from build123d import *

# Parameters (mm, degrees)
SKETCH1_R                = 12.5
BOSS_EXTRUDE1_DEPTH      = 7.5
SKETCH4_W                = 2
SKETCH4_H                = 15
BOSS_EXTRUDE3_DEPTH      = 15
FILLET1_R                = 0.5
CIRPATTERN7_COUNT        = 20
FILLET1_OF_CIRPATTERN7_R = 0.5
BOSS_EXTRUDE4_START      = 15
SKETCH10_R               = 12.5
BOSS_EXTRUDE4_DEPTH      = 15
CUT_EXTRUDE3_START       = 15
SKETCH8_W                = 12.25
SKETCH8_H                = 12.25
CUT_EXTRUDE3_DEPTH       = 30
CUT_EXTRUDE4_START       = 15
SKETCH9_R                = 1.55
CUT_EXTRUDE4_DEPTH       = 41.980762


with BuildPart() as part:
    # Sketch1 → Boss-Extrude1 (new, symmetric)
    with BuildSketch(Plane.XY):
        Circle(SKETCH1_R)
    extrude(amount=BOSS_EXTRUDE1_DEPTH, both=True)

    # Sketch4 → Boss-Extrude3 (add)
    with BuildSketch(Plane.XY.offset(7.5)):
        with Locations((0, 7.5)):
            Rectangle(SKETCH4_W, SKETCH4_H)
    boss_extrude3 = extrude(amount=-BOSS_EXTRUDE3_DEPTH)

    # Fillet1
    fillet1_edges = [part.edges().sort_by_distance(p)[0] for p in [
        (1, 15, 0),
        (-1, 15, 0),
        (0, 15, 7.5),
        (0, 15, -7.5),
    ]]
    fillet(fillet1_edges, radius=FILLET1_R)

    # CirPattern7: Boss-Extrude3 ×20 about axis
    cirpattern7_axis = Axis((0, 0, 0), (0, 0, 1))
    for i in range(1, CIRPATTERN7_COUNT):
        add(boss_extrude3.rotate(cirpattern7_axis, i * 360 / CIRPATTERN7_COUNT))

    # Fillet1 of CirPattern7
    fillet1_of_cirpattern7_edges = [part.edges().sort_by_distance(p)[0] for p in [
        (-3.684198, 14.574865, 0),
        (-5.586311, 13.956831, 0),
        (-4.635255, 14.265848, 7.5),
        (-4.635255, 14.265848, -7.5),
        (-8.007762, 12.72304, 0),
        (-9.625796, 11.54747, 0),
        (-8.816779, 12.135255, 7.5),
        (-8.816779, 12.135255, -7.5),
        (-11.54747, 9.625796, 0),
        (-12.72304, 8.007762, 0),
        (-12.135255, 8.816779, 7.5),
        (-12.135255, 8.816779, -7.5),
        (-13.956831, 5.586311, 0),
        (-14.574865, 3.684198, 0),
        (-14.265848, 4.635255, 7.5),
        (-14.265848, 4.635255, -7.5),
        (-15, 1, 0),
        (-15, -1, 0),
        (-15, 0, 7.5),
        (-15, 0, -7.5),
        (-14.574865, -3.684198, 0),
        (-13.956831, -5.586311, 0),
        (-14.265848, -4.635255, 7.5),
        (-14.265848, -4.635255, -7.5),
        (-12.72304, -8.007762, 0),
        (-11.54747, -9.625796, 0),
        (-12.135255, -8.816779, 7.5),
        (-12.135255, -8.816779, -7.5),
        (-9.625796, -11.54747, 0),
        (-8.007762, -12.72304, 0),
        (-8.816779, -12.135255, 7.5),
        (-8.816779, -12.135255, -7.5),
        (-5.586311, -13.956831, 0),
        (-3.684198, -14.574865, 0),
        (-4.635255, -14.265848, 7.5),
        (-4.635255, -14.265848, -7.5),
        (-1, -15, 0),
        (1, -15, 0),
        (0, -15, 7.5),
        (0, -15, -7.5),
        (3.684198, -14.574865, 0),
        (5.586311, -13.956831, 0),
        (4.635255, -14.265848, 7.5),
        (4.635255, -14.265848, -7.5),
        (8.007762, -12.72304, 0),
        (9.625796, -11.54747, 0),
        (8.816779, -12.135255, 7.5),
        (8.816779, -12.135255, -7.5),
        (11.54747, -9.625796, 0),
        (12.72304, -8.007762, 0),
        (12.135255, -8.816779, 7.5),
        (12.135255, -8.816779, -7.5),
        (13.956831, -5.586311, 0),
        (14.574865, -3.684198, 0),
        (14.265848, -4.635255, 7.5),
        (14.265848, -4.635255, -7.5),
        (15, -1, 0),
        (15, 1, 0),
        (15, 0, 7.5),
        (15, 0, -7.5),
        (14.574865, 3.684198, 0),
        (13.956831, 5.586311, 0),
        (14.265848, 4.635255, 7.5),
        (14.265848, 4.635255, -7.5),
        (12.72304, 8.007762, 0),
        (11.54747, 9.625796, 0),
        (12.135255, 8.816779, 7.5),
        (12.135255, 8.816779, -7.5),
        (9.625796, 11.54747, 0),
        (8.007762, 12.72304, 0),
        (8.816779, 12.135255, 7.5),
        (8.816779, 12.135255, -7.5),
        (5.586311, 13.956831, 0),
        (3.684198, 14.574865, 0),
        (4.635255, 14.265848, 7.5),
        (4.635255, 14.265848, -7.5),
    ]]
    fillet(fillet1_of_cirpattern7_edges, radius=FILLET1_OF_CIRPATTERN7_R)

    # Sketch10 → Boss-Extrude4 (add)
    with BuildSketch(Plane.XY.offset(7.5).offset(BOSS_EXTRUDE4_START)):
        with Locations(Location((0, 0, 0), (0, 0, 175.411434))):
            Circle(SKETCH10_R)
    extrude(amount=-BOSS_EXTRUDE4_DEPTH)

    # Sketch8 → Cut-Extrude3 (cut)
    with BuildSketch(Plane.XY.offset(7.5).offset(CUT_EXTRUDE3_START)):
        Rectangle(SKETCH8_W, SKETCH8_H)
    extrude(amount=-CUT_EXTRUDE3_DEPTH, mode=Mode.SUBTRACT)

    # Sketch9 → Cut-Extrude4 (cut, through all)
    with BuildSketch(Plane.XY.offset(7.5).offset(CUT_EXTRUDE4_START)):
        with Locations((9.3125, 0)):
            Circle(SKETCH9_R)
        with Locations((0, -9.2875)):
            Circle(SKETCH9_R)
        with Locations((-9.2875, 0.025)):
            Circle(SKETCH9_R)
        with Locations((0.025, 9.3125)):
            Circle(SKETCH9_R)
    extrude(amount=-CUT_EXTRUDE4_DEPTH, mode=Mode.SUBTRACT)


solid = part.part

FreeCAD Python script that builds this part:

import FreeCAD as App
import Part
import Sketcher


def edges_at(feature, points):
    """Names of the edges that pass closest to the given points."""
    edges = feature.Shape.Edges
    near = lambda p: min(range(len(edges)), key=lambda i: edges[i].distToShape(Part.Vertex(*p))[0])
    return sorted({f"Edge{near(p) + 1}" for p in points})

doc = App.newDocument("Part")
body = doc.addObject("PartDesign::Body", "Body")

sketch1 = body.newObject("Sketcher::SketchObject", "Sketch")
sketch1.AttachmentSupport = (doc.getObject("XY_Plane"), [""])
sketch1.MapMode = "FlatFace"
sketch1.addGeometry(Part.Circle(App.Vector(0, 0, 0), App.Vector(0, 0, 1), 12.5), False)
sketch1.addConstraint(Sketcher.Constraint("Coincident", 0, 3, -1, 1))
sketch1.addConstraint(Sketcher.Constraint("Diameter", 0, 25.0))
pad1 = body.newObject("PartDesign::Pad", "Pad")
pad1.Profile = sketch1
pad1.Length = 15
pad1.Midplane = True

sketch2 = body.newObject("Sketcher::SketchObject", "Sketch001")
sketch2.AttachmentSupport = (doc.getObject("XY_Plane"), [""])
sketch2.MapMode = "FlatFace"
sketch2.AttachmentOffset = App.Placement(App.Vector(0, 0, 7.5), App.Rotation())
sketch2.addGeometry(Part.LineSegment(App.Vector(-1, 15, 0), App.Vector(-1, 0, 0)), False)
sketch2.addGeometry(Part.LineSegment(App.Vector(-1, 0, 0), App.Vector(1, 0, 0)), False)
sketch2.addGeometry(Part.LineSegment(App.Vector(1, 0, 0), App.Vector(1, 15, 0)), False)
sketch2.addGeometry(Part.LineSegment(App.Vector(1, 15, 0), App.Vector(-1, 15, 0)), False)
sketch2.addConstraint(Sketcher.Constraint("Coincident", 0, 2, 1, 1))
sketch2.addConstraint(Sketcher.Constraint("Coincident", 1, 2, 2, 1))
sketch2.addConstraint(Sketcher.Constraint("Coincident", 2, 2, 3, 1))
sketch2.addConstraint(Sketcher.Constraint("Coincident", 3, 2, 0, 1))
sketch2.addConstraint(Sketcher.Constraint("Vertical", 0))
sketch2.addConstraint(Sketcher.Constraint("Horizontal", 1))
sketch2.addConstraint(Sketcher.Constraint("Vertical", 2))
sketch2.addConstraint(Sketcher.Constraint("Horizontal", 3))
sketch2.addConstraint(Sketcher.Constraint("Symmetric", 0, 2, 1, 2, -1, 1))
sketch2.addConstraint(Sketcher.Constraint("DistanceX", 1, 1, 1, 2, 2.0))
sketch2.addConstraint(Sketcher.Constraint("DistanceY", 0, 2, 0, 1, 15.0))
pad2 = body.newObject("PartDesign::Pad", "Pad001")
pad2.Profile = sketch2
pad2.Length = 15
pad2.Reversed = True
doc.recompute()

fillet = body.newObject("PartDesign::Fillet", "Fillet")
fillet.Base = (pad2, edges_at(pad2, [
    (1, 15, 0),
    (-1, 15, 0),
    (0, 15, 7.5),
    (0, 15, -7.5),
]))
fillet.Radius = 0.5
doc.recompute()

polarpattern = body.newObject("PartDesign::PolarPattern", "PolarPattern")
polarpattern.Originals = [pad2]
polarpattern.Axis = (doc.getObject("Z_Axis"), [""])
polarpattern.Angle = 360
polarpattern.Occurrences = 20
body.Tip = polarpattern
doc.recompute()

fillet2 = body.newObject("PartDesign::Fillet", "Fillet001")
fillet2.Base = (polarpattern, edges_at(polarpattern, [
    (-3.684, 14.575, 0),
    (-5.586, 13.957, 0),
    (-4.635, 14.266, 7.5),
    (-4.635, 14.266, -7.5),
    (-8.008, 12.723, 0),
    (-9.626, 11.547, 0),
    (-8.817, 12.135, 7.5),
    (-8.817, 12.135, -7.5),
    (-11.547, 9.626, 0),
    (-12.723, 8.008, 0),
    (-12.135, 8.817, 7.5),
    (-12.135, 8.817, -7.5),
    (-13.957, 5.586, 0),
    (-14.575, 3.684, 0),
    (-14.266, 4.635, 7.5),
    (-14.266, 4.635, -7.5),
    (-15, 1, 0),
    (-15, -1, 0),
    (-15, 0, 7.5),
    (-15, 0, -7.5),
    (-14.575, -3.684, 0),
    (-13.957, -5.586, 0),
    (-14.266, -4.635, 7.5),
    (-14.266, -4.635, -7.5),
    (-12.723, -8.008, 0),
    (-11.547, -9.626, 0),
    (-12.135, -8.817, 7.5),
    (-12.135, -8.817, -7.5),
    (-9.626, -11.547, 0),
    (-8.008, -12.723, 0),
    (-8.817, -12.135, 7.5),
    (-8.817, -12.135, -7.5),
    (-5.586, -13.957, 0),
    (-3.684, -14.575, 0),
    (-4.635, -14.266, 7.5),
    (-4.635, -14.266, -7.5),
    (-1, -15, 0),
    (1, -15, 0),
    (0, -15, 7.5),
    (0, -15, -7.5),
    (3.684, -14.575, 0),
    (5.586, -13.957, 0),
    (4.635, -14.266, 7.5),
    (4.635, -14.266, -7.5),
    (8.008, -12.723, 0),
    (9.626, -11.547, 0),
    (8.817, -12.135, 7.5),
    (8.817, -12.135, -7.5),
    (11.547, -9.626, 0),
    (12.723, -8.008, 0),
    (12.135, -8.817, 7.5),
    (12.135, -8.817, -7.5),
    (13.957, -5.586, 0),
    (14.575, -3.684, 0),
    (14.266, -4.635, 7.5),
    (14.266, -4.635, -7.5),
    (15, -1, 0),
    (15, 1, 0),
    (15, 0, 7.5),
    (15, 0, -7.5),
    (14.575, 3.684, 0),
    (13.957, 5.586, 0),
    (14.266, 4.635, 7.5),
    (14.266, 4.635, -7.5),
    (12.723, 8.008, 0),
    (11.547, 9.626, 0),
    (12.135, 8.817, 7.5),
    (12.135, 8.817, -7.5),
    (9.626, 11.547, 0),
    (8.008, 12.723, 0),
    (8.817, 12.135, 7.5),
    (8.817, 12.135, -7.5),
    (5.586, 13.957, 0),
    (3.684, 14.575, 0),
    (4.635, 14.266, 7.5),
    (4.635, 14.266, -7.5),
]))
fillet2.Radius = 0.5

sketch3 = body.newObject("Sketcher::SketchObject", "Sketch002")
sketch3.AttachmentSupport = (doc.getObject("XY_Plane"), [""])
sketch3.MapMode = "FlatFace"
sketch3.AttachmentOffset = App.Placement(App.Vector(0, 0, 22.5), App.Rotation())
sketch3.addGeometry(Part.Circle(App.Vector(0, 0, 0), App.Vector(0, 0, 1), 12.5), False)
sketch3.addConstraint(Sketcher.Constraint("Coincident", 0, 3, -1, 1))
sketch3.addConstraint(Sketcher.Constraint("Diameter", 0, 25.0))
pad3 = body.newObject("PartDesign::Pad", "Pad002")
pad3.Profile = sketch3
pad3.Length = 15
pad3.Reversed = True

sketch4 = body.newObject("Sketcher::SketchObject", "Sketch003")
sketch4.AttachmentSupport = (doc.getObject("XY_Plane"), [""])
sketch4.MapMode = "FlatFace"
sketch4.AttachmentOffset = App.Placement(App.Vector(0, 0, 22.5), App.Rotation())
sketch4.addGeometry(Part.LineSegment(App.Vector(-6.125, 6.125, 0), App.Vector(-6.125, -6.125, 0)), False)
sketch4.addGeometry(Part.LineSegment(App.Vector(-6.125, -6.125, 0), App.Vector(6.125, -6.125, 0)), False)
sketch4.addGeometry(Part.LineSegment(App.Vector(6.125, -6.125, 0), App.Vector(6.125, 6.125, 0)), False)
sketch4.addGeometry(Part.LineSegment(App.Vector(6.125, 6.125, 0), App.Vector(-6.125, 6.125, 0)), False)
sketch4.addConstraint(Sketcher.Constraint("Coincident", 0, 2, 1, 1))
sketch4.addConstraint(Sketcher.Constraint("Coincident", 1, 2, 2, 1))
sketch4.addConstraint(Sketcher.Constraint("Coincident", 2, 2, 3, 1))
sketch4.addConstraint(Sketcher.Constraint("Coincident", 3, 2, 0, 1))
sketch4.addConstraint(Sketcher.Constraint("Vertical", 0))
sketch4.addConstraint(Sketcher.Constraint("Horizontal", 1))
sketch4.addConstraint(Sketcher.Constraint("Vertical", 2))
sketch4.addConstraint(Sketcher.Constraint("Horizontal", 3))
sketch4.addConstraint(Sketcher.Constraint("Symmetric", 0, 2, 2, 2, -1, 1))
sketch4.addConstraint(Sketcher.Constraint("Equal", 3, 0))
sketch4.addConstraint(Sketcher.Constraint("DistanceX", 1, 1, 1, 2, 12.25))
pocket1 = body.newObject("PartDesign::Pocket", "Pocket")
pocket1.Profile = sketch4
pocket1.Length = 30

sketch5 = body.newObject("Sketcher::SketchObject", "Sketch004")
sketch5.AttachmentSupport = (doc.getObject("XY_Plane"), [""])
sketch5.MapMode = "FlatFace"
sketch5.AttachmentOffset = App.Placement(App.Vector(0, 0, 22.5), App.Rotation())
sketch5.addGeometry(Part.Circle(App.Vector(9.3125, 0, 0), App.Vector(0, 0, 1), 1.55), False)
sketch5.addGeometry(Part.Circle(App.Vector(0, -9.2875, 0), App.Vector(0, 0, 1), 1.55), False)
sketch5.addGeometry(Part.Circle(App.Vector(-9.2875, 0.025, 0), App.Vector(0, 0, 1), 1.55), False)
sketch5.addGeometry(Part.Circle(App.Vector(0.025, 9.3125, 0), App.Vector(0, 0, 1), 1.55), False)
sketch5.addConstraint(Sketcher.Constraint("Equal", 0, 1))
sketch5.addConstraint(Sketcher.Constraint("Equal", 1, 2))
sketch5.addConstraint(Sketcher.Constraint("Equal", 2, 3))
sketch5.addConstraint(Sketcher.Constraint("PointOnObject", 0, 3, -1))
sketch5.addConstraint(Sketcher.Constraint("PointOnObject", 1, 3, -2))
sketch5.addConstraint(Sketcher.Constraint("Diameter", 0, 3.1))
sketch5.addConstraint(Sketcher.Constraint("DistanceX", 2, 3, 0, 3, 18.6))
sketch5.addConstraint(Sketcher.Constraint("DistanceY", 1, 3, 3, 3, 18.6))
sketch5.addConstraint(Sketcher.Constraint("DistanceY", -1, 1, 2, 3, 0.025))
sketch5.addConstraint(Sketcher.Constraint("DistanceX", -1, 1, 3, 3, 0.025))
sketch5.addConstraint(Sketcher.Constraint("DistanceX", -1, 1, 0, 3, 9.3125))
sketch5.addConstraint(Sketcher.Constraint("DistanceY", 1, 3, -1, 1, 9.2875))
pocket2 = body.newObject("PartDesign::Pocket", "Pocket001")
pocket2.Profile = sketch5
pocket2.Type = "ThroughAll"

doc.recompute()
